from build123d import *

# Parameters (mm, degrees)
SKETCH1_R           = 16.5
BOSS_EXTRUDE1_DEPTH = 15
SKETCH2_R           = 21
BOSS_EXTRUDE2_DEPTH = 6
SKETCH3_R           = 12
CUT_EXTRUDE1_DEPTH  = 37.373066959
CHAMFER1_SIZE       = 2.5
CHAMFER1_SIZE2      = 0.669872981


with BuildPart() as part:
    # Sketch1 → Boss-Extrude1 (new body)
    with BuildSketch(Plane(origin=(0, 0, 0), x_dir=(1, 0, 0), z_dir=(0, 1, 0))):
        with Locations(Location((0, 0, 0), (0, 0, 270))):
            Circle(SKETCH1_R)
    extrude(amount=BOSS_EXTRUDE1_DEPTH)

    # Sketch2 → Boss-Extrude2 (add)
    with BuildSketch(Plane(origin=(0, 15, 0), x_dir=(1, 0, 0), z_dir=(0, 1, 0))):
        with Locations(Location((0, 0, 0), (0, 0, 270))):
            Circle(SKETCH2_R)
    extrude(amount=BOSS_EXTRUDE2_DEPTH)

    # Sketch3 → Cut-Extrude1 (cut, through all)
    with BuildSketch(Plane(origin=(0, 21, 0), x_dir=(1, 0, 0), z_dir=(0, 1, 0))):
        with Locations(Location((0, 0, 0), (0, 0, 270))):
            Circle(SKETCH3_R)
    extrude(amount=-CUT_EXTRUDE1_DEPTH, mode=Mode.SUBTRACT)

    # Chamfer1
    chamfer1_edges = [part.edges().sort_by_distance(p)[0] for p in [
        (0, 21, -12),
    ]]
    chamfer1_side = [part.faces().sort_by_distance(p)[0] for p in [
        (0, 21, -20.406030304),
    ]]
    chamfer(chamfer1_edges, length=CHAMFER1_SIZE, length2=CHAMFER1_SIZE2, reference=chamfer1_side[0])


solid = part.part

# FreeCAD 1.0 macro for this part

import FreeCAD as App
import Part
import Sketcher


def edges_at(feature, points):
    """Names of the edges that pass closest to the given points."""
    edges = feature.Shape.Edges
    near = lambda p: min(range(len(edges)), key=lambda i: edges[i].distToShape(Part.Vertex(*p))[0])
    return sorted({f"Edge{near(p) + 1}" for p in points})

doc = App.newDocument("Part")
body = doc.addObject("PartDesign::Body", "Body")

# Sketch on XZ plane
sketch1 = body.newObject("Sketcher::SketchObject", "Sketch")
sketch1.AttachmentSupport = (doc.getObject("XZ_Plane"), [""])
sketch1.MapMode = "FlatFace"
sketch1.addGeometry(Part.Circle(App.Vector(0, 0, 0), App.Vector(0, 0, 1), 16.5), False)
sketch1.addConstraint([
    Sketcher.Constraint("Coincident", 0, 3, -1, 1),
    Sketcher.Constraint("Diameter", 0, 33.0),
])
pad1 = body.newObject("PartDesign::Pad", "Pad")
pad1.Profile = sketch1
pad1.Length = 15
pad1.Reversed = True

# Sketch on XZ plane
sketch2 = body.newObject("Sketcher::SketchObject", "Sketch001")
sketch2.AttachmentSupport = (doc.getObject("XZ_Plane"), [""])
sketch2.MapMode = "FlatFace"
sketch2.AttachmentOffset = App.Placement(App.Vector(0, 0, -15), App.Rotation())
sketch2.addGeometry(Part.Circle(App.Vector(0, 0, 0), App.Vector(0, 0, 1), 21), False)
sketch2.addConstraint([
    Sketcher.Constraint("Coincident", 0, 3, -1, 1),
    Sketcher.Constraint("Diameter", 0, 42.0),
])
pad2 = body.newObject("PartDesign::Pad", "Pad001")
pad2.Profile = sketch2
pad2.Length = 6
pad2.Reversed = True

# Sketch on XZ plane
sketch3 = body.newObject("Sketcher::SketchObject", "Sketch002")
sketch3.AttachmentSupport = (doc.getObject("XZ_Plane"), [""])
sketch3.MapMode = "FlatFace"
sketch3.AttachmentOffset = App.Placement(App.Vector(0, 0, -21), App.Rotation())
sketch3.addGeometry(Part.Circle(App.Vector(0, 0, 0), App.Vector(0, 0, 1), 12), False)
sketch3.addConstraint([
    Sketcher.Constraint("Coincident", 0, 3, -1, 1),
    Sketcher.Constraint("Diameter", 0, 24.0),
])
pocket1 = body.newObject("PartDesign::Pocket", "Pocket")
pocket1.Profile = sketch3
pocket1.Type = "ThroughAll"
pocket1.Reversed = True
doc.recompute()

chamfer = body.newObject("PartDesign::Chamfer", "Chamfer")
chamfer.Base = (pocket1, edges_at(pocket1, [(0, 21, -12)]))
chamfer.ChamferType = "Two distances"
chamfer.Size = 2.5
chamfer.Size2 = 0.669873
chamfer.FlipDirection = True

doc.recompute()
